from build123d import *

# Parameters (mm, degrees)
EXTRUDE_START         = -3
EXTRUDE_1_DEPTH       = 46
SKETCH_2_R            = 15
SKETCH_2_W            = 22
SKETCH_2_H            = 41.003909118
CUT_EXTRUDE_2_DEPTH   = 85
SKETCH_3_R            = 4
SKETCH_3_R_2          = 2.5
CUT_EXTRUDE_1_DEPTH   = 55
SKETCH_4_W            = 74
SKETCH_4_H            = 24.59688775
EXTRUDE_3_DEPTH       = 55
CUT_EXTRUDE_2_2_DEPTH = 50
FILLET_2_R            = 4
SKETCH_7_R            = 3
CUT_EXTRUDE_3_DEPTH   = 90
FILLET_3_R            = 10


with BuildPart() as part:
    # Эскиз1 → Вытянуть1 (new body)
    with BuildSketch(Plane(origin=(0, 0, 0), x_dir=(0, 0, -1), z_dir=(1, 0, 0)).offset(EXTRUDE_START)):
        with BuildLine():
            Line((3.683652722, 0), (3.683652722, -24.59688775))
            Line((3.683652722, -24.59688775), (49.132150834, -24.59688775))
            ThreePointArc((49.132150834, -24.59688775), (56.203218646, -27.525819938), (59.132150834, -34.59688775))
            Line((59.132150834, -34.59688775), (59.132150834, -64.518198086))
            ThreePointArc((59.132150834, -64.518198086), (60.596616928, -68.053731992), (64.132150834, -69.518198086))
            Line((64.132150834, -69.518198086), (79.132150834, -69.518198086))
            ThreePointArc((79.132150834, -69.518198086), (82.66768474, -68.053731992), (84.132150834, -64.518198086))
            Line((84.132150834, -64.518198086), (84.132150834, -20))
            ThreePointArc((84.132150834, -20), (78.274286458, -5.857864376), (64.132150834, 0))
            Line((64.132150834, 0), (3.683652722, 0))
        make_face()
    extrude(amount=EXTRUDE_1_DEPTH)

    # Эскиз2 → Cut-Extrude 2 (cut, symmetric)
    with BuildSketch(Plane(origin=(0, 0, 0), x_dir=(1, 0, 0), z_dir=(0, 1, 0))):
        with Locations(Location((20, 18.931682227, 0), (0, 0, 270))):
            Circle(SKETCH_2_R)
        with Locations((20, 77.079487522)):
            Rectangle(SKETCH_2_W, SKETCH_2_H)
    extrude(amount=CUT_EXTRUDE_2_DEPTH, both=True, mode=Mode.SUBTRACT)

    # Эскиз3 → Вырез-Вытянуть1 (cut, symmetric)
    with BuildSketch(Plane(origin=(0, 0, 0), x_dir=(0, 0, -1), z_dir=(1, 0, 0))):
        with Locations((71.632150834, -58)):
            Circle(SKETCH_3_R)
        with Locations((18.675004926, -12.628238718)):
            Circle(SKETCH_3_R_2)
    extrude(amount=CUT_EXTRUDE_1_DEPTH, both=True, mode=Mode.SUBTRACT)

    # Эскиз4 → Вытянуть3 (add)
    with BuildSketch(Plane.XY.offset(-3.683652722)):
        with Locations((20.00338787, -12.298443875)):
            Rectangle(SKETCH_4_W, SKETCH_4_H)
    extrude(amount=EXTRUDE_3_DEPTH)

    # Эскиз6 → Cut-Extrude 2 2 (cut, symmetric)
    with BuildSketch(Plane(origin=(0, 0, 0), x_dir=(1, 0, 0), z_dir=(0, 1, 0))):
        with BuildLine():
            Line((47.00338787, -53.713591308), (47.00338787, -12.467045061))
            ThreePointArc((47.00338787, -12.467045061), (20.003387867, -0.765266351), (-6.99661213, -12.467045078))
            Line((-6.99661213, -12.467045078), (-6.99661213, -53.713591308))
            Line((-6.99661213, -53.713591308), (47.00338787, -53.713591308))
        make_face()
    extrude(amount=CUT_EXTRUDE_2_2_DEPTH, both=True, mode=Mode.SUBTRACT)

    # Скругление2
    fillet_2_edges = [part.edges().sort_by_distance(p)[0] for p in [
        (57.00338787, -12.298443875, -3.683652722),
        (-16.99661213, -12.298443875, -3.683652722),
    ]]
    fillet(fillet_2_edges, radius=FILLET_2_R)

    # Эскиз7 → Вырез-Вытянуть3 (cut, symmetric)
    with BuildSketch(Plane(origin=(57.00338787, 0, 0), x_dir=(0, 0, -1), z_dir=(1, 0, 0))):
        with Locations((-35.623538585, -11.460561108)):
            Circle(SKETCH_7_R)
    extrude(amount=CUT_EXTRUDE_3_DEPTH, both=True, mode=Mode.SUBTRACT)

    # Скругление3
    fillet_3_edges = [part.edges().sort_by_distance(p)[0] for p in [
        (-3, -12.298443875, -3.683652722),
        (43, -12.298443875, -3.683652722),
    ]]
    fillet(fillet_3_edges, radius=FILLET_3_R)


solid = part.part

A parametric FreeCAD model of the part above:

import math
import FreeCAD as App
import Part
import Sketcher
from FreeCAD import Vector
Q = App.Units.Quantity


def edges_at(feature, points):
    """Names of the edges that pass closest to the given points."""
    edges = feature.Shape.Edges
    near = lambda p: min(range(len(edges)), key=lambda i: edges[i].distToShape(Part.Vertex(*p))[0])
    return sorted({f"Edge{near(p) + 1}" for p in points})

doc = App.newDocument("Part")
params = doc.addObject("Spreadsheet::Sheet", "Params")
for row, (alias, value) in enumerate([
    ("sketch1_radius", "10 mm"),
    ("sketch1_radius2", "5 mm"),
    ("sketch1_radius3", "20 mm"),
    ("pad1_length", "46 mm"),
    ("sketch2_diameter", "30 mm"),
    ("sketch2_width", "22 mm"),
    ("pocket1_length", "170 mm"),
    ("sketch3_diameter", "8 mm"),
    ("sketch3_diameter2", "5 mm"),
    ("pocket2_length", "110 mm"),
    ("sketch4_width", "74 mm"),
    ("pad2_length", "55 mm"),
    ("sketch5_radius", "37 mm"),
    ("sketch5_width", "54 mm"),
    ("pocket3_length", "100 mm"),
    ("fillet_radius", "4 mm"),
    ("sketch6_diameter", "6 mm"),
    ("pocket4_length", "180 mm"),
    ("fillet2_radius", "10 mm"),
], start=1):
    params.set(f"A{row}", alias)
    params.set(f"B{row}", "=" + value)
    params.setAlias(f"B{row}", alias)

body = doc.addObject("PartDesign::Body", "Body")

# Sketch on YZ plane
sketch1 = doc.addObject("Sketcher::SketchObject", "Sketch")
body.addObject(sketch1)
sketch1.AttachmentSupport = (doc.YZ_Plane, [""])
sketch1.MapMode = "FlatFace"
sketch1.AttachmentOffset = App.Placement(Vector(0, 0, -3), App.Rotation())
sketch1.addGeometry([
    Part.LineSegment(Vector(0, -3.683653, 0), Vector(-24.596888, -3.683653, 0)),  # 0
    Part.LineSegment(Vector(-24.596888, -3.683653, 0), Vector(-24.596888, -49.132151, 0)),  # 1
    Part.ArcOfCircle(Part.Circle(Vector(-34.596888, -49.132151, 0), Vector(0, 0, 1), 10), math.radians(-90), math.radians(0)),  # 2
    Part.LineSegment(Vector(-34.596888, -59.132151, 0), Vector(-64.518198, -59.132151, 0)),  # 3
    Part.ArcOfCircle(Part.Circle(Vector(-64.518198, -64.132151, 0), Vector(0, 0, 1), 5), math.radians(90), math.radians(180)),  # 4
    Part.LineSegment(Vector(-69.518198, -64.132151, 0), Vector(-69.518198, -79.132151, 0)),  # 5
    Part.ArcOfCircle(Part.Circle(Vector(-64.518198, -79.132151, 0), Vector(0, 0, 1), 5), math.radians(180), math.radians(270)),  # 6
    Part.LineSegment(Vector(-64.518198, -84.132151, 0), Vector(-20, -84.132151, 0)),  # 7
    Part.ArcOfCircle(Part.Circle(Vector(-20, -64.132151, 0), Vector(0, 0, 1), 20), math.radians(-90), math.radians(0)),  # 8
    Part.LineSegment(Vector(0, -64.132151, 0), Vector(0, -3.683653, 0)),  # 9
], False)
sketch1.addConstraint([
    Sketcher.Constraint("Coincident", 0, 2, 1, 1),
    Sketcher.Constraint("Tangent", 1, 2, 2, 2),
    Sketcher.Constraint("Tangent", 2, 1, 3, 1),
    Sketcher.Constraint("Tangent", 3, 2, 4, 1),
    Sketcher.Constraint("Tangent", 4, 2, 5, 1),
    Sketcher.Constraint("Tangent", 5, 2, 6, 1),
    Sketcher.Constraint("Tangent", 6, 2, 7, 1),
    Sketcher.Constraint("Tangent", 7, 2, 8, 1),
    Sketcher.Constraint("Tangent", 8, 2, 9, 1),
    Sketcher.Constraint("Coincident", 9, 2, 0, 1),
    Sketcher.Constraint("Horizontal", 0),
    Sketcher.Constraint("Vertical", 1),
    Sketcher.Constraint("Horizontal", 3),
    Sketcher.Constraint("Vertical", 5),
    Sketcher.Constraint("Horizontal", 7),
    Sketcher.Constraint("Vertical", 9),
    Sketcher.Constraint("Equal", 4, 6),
    Sketcher.Constraint("PointOnObject", 8, 2, -2),
    Sketcher.Constraint("Horizontal", 4, 3, 8, 3),
    Sketcher.Constraint("Radius", 2, Q("10 mm")),
    Sketcher.Constraint("Radius", 4, Q("5 mm")),
    Sketcher.Constraint("Radius", 8, Q("20 mm")),
    Sketcher.Constraint("DistanceX", 7, 1, 7, 2, Q("44.518198 mm")),
    Sketcher.Constraint("DistanceY", 1, 2, 1, 1, Q("45.448498 mm")),
    Sketcher.Constraint("DistanceX", 3, 2, 3, 1, Q("29.92131 mm")),
    Sketcher.Constraint("DistanceY", 2, 3, -1, 1, Q("49.132151 mm")),
])
sketch1.setExpression("Constraints[19]", "Params.sketch1_radius")
sketch1.setExpression("Constraints[20]", "Params.sketch1_radius2")
sketch1.setExpression("Constraints[21]", "Params.sketch1_radius3")
pad1 = doc.addObject("PartDesign::Pad", "Pad")
body.addObject(pad1)
pad1.Profile = sketch1
pad1.setExpression("Length", "Params.pad1_length")

# Sketch on XZ plane
sketch2 = doc.addObject("Sketcher::SketchObject", "Sketch001")
body.addObject(sketch2)
sketch2.AttachmentSupport = (doc.XZ_Plane, [""])
sketch2.MapMode = "FlatFace"
sketch2.addGeometry([
    Part.Circle(Vector(20, -18.931682, 0), Vector(0, 0, 1), 15),  # 0
    Part.LineSegment(Vector(9, -97.581442, 0), Vector(9, -56.577533, 0)),  # 1
    Part.LineSegment(Vector(9, -56.577533, 0), Vector(31, -56.577533, 0)),  # 2
    Part.LineSegment(Vector(31, -56.577533, 0), Vector(31, -97.581442, 0)),  # 3
    Part.LineSegment(Vector(31, -97.581442, 0), Vector(9, -97.581442, 0)),  # 4
], False)
sketch2.addConstraint([
    Sketcher.Constraint("Coincident", 1, 2, 2, 1),
    Sketcher.Constraint("Coincident", 2, 2, 3, 1),
    Sketcher.Constraint("Coincident", 3, 2, 4, 1),
    Sketcher.Constraint("Coincident", 4, 2, 1, 1),
    Sketcher.Constraint("Vertical", 1),
    Sketcher.Constraint("Horizontal", 2),
    Sketcher.Constraint("Vertical", 3),
    Sketcher.Constraint("Horizontal", 4),
    Sketcher.Constraint("Diameter", 0, Q("30 mm")),
    Sketcher.Constraint("DistanceX", 2, 1, 2, 2, Q("22 mm")),
    Sketcher.Constraint("DistanceX", -1, 1, 0, 3, Q("20 mm")),
    Sketcher.Constraint("DistanceX", -1, 1, 1, 2, Q("9 mm")),
    Sketcher.Constraint("DistanceY", 1, 1, 1, 2, Q("41.003909 mm")),
    Sketcher.Constraint("DistanceY", 1, 2, 0, 3, Q("37.645851 mm")),
    Sketcher.Constraint("DistanceY", 0, 3, -1, 1, Q("18.931682 mm")),
])
sketch2.setExpression("Constraints[8]", "Params.sketch2_diameter")
sketch2.setExpression("Constraints[9]", "Params.sketch2_width")
pocket1 = doc.addObject("PartDesign::Pocket", "Pocket")
body.addObject(pocket1)
pocket1.Profile = sketch2
pocket1.setExpression("Length", "Params.pocket1_length")
pocket1.Midplane = True

# Sketch on YZ plane
sketch3 = doc.addObject("Sketcher::SketchObject", "Sketch002")
body.addObject(sketch3)
sketch3.AttachmentSupport = (doc.YZ_Plane, [""])
sketch3.MapMode = "FlatFace"
sketch3.addGeometry([
    Part.Circle(Vector(-58, -71.632151, 0), Vector(0, 0, 1), 4),
    Part.Circle(Vector(-12.628239, -18.675005, 0), Vector(0, 0, 1), 2.5),
], False)
sketch3.addConstraint([
    Sketcher.Constraint("Diameter", 0, Q("8 mm")),
    Sketcher.Constraint("Diameter", 1, Q("5 mm")),
    Sketcher.Constraint("DistanceX", 0, 3, -1, 1, Q("58 mm")),
    Sketcher.Constraint("DistanceY", 0, 3, -1, 1, Q("71.632151 mm")),
    Sketcher.Constraint("DistanceX", 1, 3, -1, 1, Q("12.628239 mm")),
    Sketcher.Constraint("DistanceY", 1, 3, -1, 1, Q("18.675005 mm")),
])
sketch3.setExpression("Constraints[0]", "Params.sketch3_diameter")
sketch3.setExpression("Constraints[1]", "Params.sketch3_diameter2")
pocket2 = doc.addObject("PartDesign::Pocket", "Pocket001")
body.addObject(pocket2)
pocket2.Profile = sketch3
pocket2.setExpression("Length", "Params.pocket2_length")
pocket2.Midplane = True

# Sketch on XY plane
sketch4 = doc.addObject("Sketcher::SketchObject", "Sketch003")
body.addObject(sketch4)
sketch4.AttachmentSupport = (doc.XY_Plane, [""])
sketch4.MapMode = "FlatFace"
sketch4.AttachmentOffset = App.Placement(Vector(0, 0, -3.683653), App.Rotation())
sketch4.addGeometry([
    Part.LineSegment(Vector(-16.996612, 0, 0), Vector(-16.996612, -24.596888, 0)),
    Part.LineSegment(Vector(-16.996612, -24.596888, 0), Vector(57.003388, -24.596888, 0)),
    Part.LineSegment(Vector(57.003388, -24.596888, 0), Vector(57.003388, 0, 0)),
    Part.LineSegment(Vector(57.003388, 0, 0), Vector(-16.996612, 0, 0)),
], False)
sketch4.addConstraint([
    Sketcher.Constraint("Coincident", 0, 2, 1, 1),
    Sketcher.Constraint("Coincident", 1, 2, 2, 1),
    Sketcher.Constraint("Coincident", 2, 2, 3, 1),
    Sketcher.Constraint("Coincident", 3, 2, 0, 1),
    Sketcher.Constraint("Vertical", 0),
    Sketcher.Constraint("Horizontal", 1),
    Sketcher.Constraint("Vertical", 2),
    Sketcher.Constraint("Horizontal", 3),
    Sketcher.Constraint("PointOnObject", 2, 2, -1),
    Sketcher.Constraint("DistanceX", 1, 1, 1, 2, Q("74 mm")),
    Sketcher.Constraint("DistanceY", 0, 2, 0, 1, Q("24.596888 mm")),
    Sketcher.Constraint("DistanceX", 0, 2, -1, 1, Q("16.996612 mm")),
])
sketch4.setExpression("Constraints[9]", "Params.sketch4_width")
pad2 = doc.addObject("PartDesign::Pad", "Pad001")
body.addObject(pad2)
pad2.Profile = sketch4
pad2.setExpression("Length", "Params.pad2_length")

# Sketch on XZ plane
sketch5 = doc.addObject("Sketcher::SketchObject", "Sketch004")
body.addObject(sketch5)
sketch5.AttachmentSupport = (doc.XZ_Plane, [""])
sketch5.MapMode = "FlatFace"
sketch5.addGeometry([
    Part.LineSegment(Vector(47.003388, 53.713591, 0), Vector(47.003388, 12.467045, 0)),
    Part.ArcOfCircle(Part.Circle(Vector(20.003388, 37.765266, 0), Vector(0, 0, 1), 37), math.radians(-136.863741), math.radians(-43.136259)),
    Part.LineSegment(Vector(-6.996612, 12.467045, 0), Vector(-6.996612, 53.713591, 0)),
    Part.LineSegment(Vector(-6.996612, 53.713591, 0), Vector(47.003388, 53.713591, 0)),
], False)
sketch5.addConstraint([
    Sketcher.Constraint("Coincident", 0, 2, 1, 2),
    Sketcher.Constraint("Coincident", 1, 1, 2, 1),
    Sketcher.Constraint("Coincident", 2, 2, 3, 1),
    Sketcher.Constraint("Coincident", 3, 2, 0, 1),
    Sketcher.Constraint("Vertical", 0),
    Sketcher.Constraint("Vertical", 2),
    Sketcher.Constraint("Horizontal", 3),
    Sketcher.Constraint("Horizontal", 0, 2, 1, 1),
    Sketcher.Constraint("Radius", 1, Q("37 mm")),
    Sketcher.Constraint("DistanceX", 3, 1, 3, 2, Q("54 mm")),
    Sketcher.Constraint("DistanceY", 0, 2, 0, 1, Q("41.246546 mm")),
    Sketcher.Constraint("DistanceY", -1, 1, 2, 2, Q("53.713591 mm")),
    Sketcher.Constraint("DistanceX", -1, 1, 1, 3, Q("20.003388 mm")),
])
sketch5.setExpression("Constraints[8]", "Params.sketch5_radius")
sketch5.setExpression("Constraints[9]", "Params.sketch5_width")
pocket3 = doc.addObject("PartDesign::Pocket", "Pocket002")
body.addObject(pocket3)
pocket3.Profile = sketch5
pocket3.setExpression("Length", "Params.pocket3_length")
pocket3.Midplane = True
doc.recompute()

fillet = doc.addObject("PartDesign::Fillet", "Fillet")
body.addObject(fillet)
fillet.Base = (pocket3, edges_at(pocket3, [(57.003, -12.298, -3.684), (-16.997, -12.298, -3.684)]))
fillet.setExpression("Radius", "Params.fillet_radius")

# Sketch on YZ plane
sketch6 = doc.addObject("Sketcher::SketchObject", "Sketch005")
body.addObject(sketch6)
sketch6.AttachmentSupport = (doc.YZ_Plane, [""])
sketch6.MapMode = "FlatFace"
sketch6.AttachmentOffset = App.Placement(Vector(0, 0, 57.003388), App.Rotation())
sketch6.addGeometry(Part.Circle(Vector(-11.460561, 35.623539, 0), Vector(0, 0, 1), 3), False)
sketch6.addConstraint([
    Sketcher.Constraint("Diameter", 0, Q("6 mm")),
    Sketcher.Constraint("DistanceX", 0, 3, -1, 1, Q("11.460561 mm")),
    Sketcher.Constraint("DistanceY", -1, 1, 0, 3, Q("35.623539 mm")),
])
sketch6.setExpression("Constraints[0]", "Params.sketch6_diameter")
pocket4 = doc.addObject("PartDesign::Pocket", "Pocket003")
body.addObject(pocket4)
pocket4.Profile = sketch6
pocket4.setExpression("Length", "Params.pocket4_length")
pocket4.Midplane = True
doc.recompute()

fillet2 = doc.addObject("PartDesign::Fillet", "Fillet001")
body.addObject(fillet2)
fillet2.Base = (pocket4, edges_at(pocket4, [(-3, -12.298, -3.684), (43, -12.298, -3.684)]))
fillet2.setExpression("Radius", "Params.fillet2_radius")

doc.recompute()
